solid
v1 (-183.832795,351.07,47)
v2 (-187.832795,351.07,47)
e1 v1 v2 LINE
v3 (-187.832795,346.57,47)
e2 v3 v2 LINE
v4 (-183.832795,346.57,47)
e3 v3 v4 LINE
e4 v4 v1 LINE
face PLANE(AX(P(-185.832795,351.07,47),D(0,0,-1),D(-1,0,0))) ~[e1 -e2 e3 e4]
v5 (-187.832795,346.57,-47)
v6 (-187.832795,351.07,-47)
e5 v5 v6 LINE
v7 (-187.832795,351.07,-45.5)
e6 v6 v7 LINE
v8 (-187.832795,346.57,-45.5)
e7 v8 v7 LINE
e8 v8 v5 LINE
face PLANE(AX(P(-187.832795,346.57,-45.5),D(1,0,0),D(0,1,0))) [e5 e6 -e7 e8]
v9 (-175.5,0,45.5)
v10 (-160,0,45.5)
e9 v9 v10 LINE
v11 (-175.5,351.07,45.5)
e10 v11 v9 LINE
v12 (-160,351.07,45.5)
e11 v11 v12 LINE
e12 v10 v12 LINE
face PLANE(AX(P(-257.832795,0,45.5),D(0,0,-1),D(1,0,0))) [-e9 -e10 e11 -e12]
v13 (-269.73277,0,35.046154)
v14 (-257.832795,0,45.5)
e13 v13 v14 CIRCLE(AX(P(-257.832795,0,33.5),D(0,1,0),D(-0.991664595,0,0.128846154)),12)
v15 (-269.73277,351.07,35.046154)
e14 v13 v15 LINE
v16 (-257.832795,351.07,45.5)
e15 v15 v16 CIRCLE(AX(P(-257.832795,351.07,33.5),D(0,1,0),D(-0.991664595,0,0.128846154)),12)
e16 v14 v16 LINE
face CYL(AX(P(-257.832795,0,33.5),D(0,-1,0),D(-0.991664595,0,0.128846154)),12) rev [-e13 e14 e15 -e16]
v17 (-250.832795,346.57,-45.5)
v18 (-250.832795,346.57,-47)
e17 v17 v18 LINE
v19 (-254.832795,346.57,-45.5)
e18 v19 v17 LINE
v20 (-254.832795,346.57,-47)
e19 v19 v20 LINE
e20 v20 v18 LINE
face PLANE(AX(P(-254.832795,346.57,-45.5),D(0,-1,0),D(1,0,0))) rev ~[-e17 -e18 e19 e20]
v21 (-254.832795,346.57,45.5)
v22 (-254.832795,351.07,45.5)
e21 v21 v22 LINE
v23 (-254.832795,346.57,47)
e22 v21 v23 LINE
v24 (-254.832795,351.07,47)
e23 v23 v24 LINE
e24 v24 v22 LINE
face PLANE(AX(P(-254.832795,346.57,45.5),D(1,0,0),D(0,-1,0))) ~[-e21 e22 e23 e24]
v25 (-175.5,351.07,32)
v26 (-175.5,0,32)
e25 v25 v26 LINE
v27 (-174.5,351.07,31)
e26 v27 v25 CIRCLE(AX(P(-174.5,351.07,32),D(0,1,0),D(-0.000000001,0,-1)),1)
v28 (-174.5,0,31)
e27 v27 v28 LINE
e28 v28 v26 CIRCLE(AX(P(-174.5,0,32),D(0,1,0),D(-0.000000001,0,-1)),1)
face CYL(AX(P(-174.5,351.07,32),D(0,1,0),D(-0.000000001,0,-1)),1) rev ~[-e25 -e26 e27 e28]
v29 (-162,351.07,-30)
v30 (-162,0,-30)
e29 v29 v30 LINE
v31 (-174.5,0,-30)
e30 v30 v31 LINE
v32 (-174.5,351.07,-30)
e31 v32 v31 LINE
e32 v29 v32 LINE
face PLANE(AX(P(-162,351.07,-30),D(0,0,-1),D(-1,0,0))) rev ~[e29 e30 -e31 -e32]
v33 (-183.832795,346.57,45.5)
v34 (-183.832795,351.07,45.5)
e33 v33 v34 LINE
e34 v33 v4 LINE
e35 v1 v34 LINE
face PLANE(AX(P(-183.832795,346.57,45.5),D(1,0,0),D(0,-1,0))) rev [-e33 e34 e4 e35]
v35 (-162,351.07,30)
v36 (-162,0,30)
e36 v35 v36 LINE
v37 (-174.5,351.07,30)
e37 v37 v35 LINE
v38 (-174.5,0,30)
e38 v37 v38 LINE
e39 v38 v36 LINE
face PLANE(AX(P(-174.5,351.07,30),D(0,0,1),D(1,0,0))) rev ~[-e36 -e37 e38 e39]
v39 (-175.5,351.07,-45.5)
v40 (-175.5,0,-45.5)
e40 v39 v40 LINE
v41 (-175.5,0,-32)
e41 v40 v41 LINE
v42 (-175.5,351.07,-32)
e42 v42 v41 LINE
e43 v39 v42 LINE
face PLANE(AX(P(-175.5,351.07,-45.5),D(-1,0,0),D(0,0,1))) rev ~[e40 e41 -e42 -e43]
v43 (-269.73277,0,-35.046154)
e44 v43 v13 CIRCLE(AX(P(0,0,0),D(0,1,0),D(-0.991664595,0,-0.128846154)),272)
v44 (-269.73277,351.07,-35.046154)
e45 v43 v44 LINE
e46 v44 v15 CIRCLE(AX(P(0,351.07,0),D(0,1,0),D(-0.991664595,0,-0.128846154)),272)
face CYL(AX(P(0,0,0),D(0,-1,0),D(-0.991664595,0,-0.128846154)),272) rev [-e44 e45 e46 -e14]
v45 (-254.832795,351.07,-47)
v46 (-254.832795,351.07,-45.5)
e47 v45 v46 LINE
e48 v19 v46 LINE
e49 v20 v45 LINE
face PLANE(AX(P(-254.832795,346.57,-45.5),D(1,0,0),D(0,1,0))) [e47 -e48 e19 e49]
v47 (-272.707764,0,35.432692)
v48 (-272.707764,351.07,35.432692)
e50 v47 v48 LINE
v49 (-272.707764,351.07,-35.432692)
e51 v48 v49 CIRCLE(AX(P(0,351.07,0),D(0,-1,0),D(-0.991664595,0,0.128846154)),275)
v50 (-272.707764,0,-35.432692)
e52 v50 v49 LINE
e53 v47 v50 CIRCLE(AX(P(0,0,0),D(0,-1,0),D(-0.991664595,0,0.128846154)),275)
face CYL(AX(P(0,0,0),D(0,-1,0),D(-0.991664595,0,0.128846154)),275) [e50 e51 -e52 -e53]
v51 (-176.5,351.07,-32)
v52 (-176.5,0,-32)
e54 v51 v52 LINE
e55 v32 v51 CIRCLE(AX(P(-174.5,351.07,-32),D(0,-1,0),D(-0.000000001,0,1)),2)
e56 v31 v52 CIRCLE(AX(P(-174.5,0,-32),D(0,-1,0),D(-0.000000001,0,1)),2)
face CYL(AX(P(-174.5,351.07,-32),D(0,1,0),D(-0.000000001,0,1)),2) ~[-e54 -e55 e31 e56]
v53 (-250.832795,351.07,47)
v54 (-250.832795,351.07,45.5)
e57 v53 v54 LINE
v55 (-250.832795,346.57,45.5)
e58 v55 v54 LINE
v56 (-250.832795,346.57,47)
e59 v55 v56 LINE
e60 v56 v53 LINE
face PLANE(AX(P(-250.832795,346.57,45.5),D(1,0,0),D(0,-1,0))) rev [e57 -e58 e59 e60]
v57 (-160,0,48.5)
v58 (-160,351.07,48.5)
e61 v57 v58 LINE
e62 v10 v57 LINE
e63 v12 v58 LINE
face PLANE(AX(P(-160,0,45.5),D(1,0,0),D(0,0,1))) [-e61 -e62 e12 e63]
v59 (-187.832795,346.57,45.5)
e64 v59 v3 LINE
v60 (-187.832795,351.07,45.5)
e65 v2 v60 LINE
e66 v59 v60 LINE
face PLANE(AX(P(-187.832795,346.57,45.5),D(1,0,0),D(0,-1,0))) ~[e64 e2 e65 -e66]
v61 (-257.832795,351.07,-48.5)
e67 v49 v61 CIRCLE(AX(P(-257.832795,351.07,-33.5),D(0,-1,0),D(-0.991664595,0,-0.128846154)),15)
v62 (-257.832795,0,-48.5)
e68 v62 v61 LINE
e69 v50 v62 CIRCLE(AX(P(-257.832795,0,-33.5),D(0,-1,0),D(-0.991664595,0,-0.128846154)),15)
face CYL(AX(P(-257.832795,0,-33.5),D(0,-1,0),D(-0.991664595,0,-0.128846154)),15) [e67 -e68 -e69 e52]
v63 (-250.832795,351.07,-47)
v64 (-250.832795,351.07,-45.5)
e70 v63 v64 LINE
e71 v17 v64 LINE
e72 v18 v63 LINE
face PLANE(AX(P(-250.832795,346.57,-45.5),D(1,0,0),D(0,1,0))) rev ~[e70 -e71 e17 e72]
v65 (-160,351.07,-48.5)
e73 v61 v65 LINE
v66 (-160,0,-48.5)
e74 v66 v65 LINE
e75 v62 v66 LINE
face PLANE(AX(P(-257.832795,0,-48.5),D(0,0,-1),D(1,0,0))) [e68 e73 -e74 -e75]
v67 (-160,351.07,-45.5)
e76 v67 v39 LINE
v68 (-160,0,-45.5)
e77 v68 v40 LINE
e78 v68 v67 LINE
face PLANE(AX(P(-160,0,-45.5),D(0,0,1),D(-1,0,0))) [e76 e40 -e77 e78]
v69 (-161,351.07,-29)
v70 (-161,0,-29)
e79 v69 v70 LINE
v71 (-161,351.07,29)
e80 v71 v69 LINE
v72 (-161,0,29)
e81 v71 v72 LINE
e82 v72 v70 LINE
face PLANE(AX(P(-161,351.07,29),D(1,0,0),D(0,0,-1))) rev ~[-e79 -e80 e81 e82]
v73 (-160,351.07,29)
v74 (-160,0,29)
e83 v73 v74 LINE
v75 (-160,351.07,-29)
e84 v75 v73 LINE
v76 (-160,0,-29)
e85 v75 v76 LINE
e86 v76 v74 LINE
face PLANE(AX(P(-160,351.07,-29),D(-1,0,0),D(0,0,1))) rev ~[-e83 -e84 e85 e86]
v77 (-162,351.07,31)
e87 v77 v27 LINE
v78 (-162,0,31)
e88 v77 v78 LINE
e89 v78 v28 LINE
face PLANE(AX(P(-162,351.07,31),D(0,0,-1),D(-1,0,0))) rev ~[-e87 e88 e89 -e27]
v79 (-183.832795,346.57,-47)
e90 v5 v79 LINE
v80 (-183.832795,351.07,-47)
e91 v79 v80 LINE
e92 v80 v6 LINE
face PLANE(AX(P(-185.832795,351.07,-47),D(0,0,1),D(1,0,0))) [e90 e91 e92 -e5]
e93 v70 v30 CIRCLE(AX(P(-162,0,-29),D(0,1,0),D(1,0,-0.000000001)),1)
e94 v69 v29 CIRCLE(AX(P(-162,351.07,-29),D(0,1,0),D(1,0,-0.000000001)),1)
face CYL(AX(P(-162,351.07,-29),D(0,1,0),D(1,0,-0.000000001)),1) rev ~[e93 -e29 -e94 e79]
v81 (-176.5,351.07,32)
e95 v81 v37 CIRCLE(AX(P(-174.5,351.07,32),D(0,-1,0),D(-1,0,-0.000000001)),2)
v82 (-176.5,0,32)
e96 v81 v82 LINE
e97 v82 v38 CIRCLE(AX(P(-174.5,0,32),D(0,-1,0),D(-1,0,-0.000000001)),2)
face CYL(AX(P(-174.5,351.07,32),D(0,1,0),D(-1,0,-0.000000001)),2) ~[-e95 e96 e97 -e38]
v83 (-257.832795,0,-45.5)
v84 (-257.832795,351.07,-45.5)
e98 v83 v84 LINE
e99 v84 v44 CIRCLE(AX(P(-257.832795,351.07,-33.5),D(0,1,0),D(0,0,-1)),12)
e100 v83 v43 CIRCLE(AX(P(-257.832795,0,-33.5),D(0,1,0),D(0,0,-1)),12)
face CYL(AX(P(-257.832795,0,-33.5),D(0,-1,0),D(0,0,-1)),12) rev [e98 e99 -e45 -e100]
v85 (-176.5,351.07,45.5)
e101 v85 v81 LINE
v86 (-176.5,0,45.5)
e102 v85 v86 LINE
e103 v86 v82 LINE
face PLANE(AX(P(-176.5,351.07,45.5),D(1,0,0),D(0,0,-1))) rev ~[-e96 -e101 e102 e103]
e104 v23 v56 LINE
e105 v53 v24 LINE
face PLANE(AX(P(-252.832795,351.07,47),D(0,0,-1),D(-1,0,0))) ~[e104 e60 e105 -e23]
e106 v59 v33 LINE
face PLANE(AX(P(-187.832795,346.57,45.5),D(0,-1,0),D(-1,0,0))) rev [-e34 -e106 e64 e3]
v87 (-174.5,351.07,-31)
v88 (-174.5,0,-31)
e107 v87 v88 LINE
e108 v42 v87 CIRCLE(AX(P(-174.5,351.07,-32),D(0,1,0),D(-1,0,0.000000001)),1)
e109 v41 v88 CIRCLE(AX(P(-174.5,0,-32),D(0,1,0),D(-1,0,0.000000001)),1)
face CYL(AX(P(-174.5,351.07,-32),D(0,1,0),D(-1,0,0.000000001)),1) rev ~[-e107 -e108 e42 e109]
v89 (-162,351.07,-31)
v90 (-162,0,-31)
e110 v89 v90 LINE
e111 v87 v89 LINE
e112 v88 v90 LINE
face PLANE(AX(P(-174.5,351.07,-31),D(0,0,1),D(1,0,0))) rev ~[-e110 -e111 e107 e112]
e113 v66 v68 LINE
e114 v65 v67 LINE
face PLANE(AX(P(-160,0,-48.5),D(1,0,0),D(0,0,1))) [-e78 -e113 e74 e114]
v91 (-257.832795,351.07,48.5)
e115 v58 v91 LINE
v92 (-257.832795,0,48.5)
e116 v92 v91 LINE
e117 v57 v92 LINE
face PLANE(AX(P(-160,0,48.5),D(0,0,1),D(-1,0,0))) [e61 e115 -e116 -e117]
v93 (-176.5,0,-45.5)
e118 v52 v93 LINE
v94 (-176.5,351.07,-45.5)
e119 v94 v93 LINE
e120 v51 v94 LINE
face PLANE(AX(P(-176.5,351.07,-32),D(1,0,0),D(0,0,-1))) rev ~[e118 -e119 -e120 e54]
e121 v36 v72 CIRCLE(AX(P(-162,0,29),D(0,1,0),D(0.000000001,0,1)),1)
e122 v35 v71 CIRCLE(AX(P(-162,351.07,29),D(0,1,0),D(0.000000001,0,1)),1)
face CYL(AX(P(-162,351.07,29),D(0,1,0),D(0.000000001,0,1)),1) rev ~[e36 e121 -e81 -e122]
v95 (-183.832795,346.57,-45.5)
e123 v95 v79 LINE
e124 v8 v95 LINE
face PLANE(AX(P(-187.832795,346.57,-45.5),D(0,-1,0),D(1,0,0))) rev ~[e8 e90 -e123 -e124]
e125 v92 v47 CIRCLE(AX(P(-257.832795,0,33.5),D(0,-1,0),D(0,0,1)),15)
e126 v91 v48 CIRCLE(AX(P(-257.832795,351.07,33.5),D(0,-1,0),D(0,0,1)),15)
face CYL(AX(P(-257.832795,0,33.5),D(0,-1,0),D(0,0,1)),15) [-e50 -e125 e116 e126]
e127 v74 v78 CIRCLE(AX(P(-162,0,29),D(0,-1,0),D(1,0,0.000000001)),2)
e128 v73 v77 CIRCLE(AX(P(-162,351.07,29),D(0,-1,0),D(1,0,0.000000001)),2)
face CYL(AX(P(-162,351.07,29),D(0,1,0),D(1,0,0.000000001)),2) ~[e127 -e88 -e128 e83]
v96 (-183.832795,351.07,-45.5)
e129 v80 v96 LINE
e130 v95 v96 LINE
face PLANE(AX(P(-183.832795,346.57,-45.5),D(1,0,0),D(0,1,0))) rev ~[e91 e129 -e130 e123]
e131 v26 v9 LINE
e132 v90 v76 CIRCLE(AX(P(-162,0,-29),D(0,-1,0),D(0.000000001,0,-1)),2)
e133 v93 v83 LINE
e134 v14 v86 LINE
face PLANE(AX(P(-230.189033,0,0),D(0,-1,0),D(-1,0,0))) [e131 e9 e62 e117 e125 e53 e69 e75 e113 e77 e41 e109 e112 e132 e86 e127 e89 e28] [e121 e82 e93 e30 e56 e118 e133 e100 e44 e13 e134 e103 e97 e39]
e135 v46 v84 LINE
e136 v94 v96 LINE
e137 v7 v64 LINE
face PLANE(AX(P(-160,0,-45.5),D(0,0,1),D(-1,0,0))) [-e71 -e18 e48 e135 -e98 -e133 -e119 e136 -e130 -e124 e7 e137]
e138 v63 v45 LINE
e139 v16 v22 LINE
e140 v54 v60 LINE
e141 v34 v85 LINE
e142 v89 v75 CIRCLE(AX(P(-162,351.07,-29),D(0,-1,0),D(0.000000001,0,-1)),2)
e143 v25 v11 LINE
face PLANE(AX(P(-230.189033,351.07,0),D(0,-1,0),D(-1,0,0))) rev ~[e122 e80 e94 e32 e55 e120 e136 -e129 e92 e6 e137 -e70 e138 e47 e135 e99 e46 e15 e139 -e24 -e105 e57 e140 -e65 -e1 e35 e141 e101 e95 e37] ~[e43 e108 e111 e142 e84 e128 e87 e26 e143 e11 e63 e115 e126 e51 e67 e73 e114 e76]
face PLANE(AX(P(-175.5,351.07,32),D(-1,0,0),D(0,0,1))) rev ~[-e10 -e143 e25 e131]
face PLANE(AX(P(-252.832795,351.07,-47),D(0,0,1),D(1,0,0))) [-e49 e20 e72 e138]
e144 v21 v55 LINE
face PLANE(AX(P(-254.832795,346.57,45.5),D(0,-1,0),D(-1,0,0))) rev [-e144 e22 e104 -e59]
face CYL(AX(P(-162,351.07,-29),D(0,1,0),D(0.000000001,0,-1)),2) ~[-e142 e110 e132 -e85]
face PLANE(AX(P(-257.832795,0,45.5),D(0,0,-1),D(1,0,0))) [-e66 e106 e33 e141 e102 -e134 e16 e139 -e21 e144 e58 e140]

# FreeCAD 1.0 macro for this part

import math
import FreeCAD as App
import Part
import Sketcher

V = App.Vector
Q = App.Units.Quantity


def add_polygon(sketch, points):
    """Adds a closed chain of lines whose ends are joined by coincident constraints."""
    first, n = sketch.GeometryCount, len(points)
    for a, b in zip(points, points[1:] + points[:1]):
        sketch.addGeometry(Part.LineSegment(App.Vector(*a, 0), App.Vector(*b, 0)), False)
    for i in range(n):
        sketch.addConstraint(Sketcher.Constraint("Coincident", first + i, 2, first + (i + 1) % n, 1))

doc = App.newDocument("Part")
body = doc.addObject("PartDesign::Body", "Body")

# Sketch on XZ plane
sketch1 = body.newObject("Sketcher::SketchObject", "Sketch")
sketch1.AttachmentSupport = (doc.getObject("XZ_Plane"), [""])
sketch1.MapMode = "FlatFace"
sketch1.addGeometry([
    Part.LineSegment(V(-160, -48.5, 0), V(-257.8, -48.5, 0)),  # 0
    Part.ArcOfCircle(Part.Circle(V(-257.8, -33.5, 0), V(0, 0, 1), 15), math.radians(-173), math.radians(-90)),  # 1
    Part.ArcOfCircle(Part.Circle(V(0, 0, 0), V(0, 0, 1), 275), math.radians(172.6), math.radians(187.4)),  # 2
    Part.ArcOfCircle(Part.Circle(V(-257.8, 33.5, 0), V(0, 0, 1), 15), math.radians(90), math.radians(173)),  # 3
    Part.LineSegment(V(-257.8, 48.5, 0), V(-160, 48.5, 0)),  # 4
    Part.LineSegment(V(-160, 48.5, 0), V(-160, 45.5, 0)),  # 5
    Part.LineSegment(V(-160, 45.5, 0), V(-257.8, 45.5, 0)),  # 6
    Part.ArcOfCircle(Part.Circle(V(-257.8, 33.5, 0), V(0, 0, 1), 12), math.radians(90), math.radians(173)),  # 7
    Part.ArcOfCircle(Part.Circle(V(0, 0, 0), V(0, 0, 1), 272), math.radians(172.6), math.radians(187.4)),  # 8
    Part.ArcOfCircle(Part.Circle(V(-257.8, -33.5, 0), V(0, 0, 1), 12), math.radians(-173), math.radians(-90)),  # 9
    Part.LineSegment(V(-257.8, -45.5, 0), V(-160, -45.5, 0)),  # 10
    Part.LineSegment(V(-160, -45.5, 0), V(-160, -48.5, 0)),  # 11
], False)
sketch1.addConstraint([
    Sketcher.Constraint("Tangent", 0, 2, 1, 2),
    Sketcher.Constraint("Tangent", 1, 1, 2, 2),
    Sketcher.Constraint("Tangent", 2, 1, 3, 2),
    Sketcher.Constraint("Tangent", 3, 1, 4, 1),
    Sketcher.Constraint("Coincident", 4, 2, 5, 1),
    Sketcher.Constraint("Coincident", 5, 2, 6, 1),
    Sketcher.Constraint("Tangent", 6, 2, 7, 1),
    Sketcher.Constraint("Tangent", 7, 2, 8, 1),
    Sketcher.Constraint("Tangent", 8, 2, 9, 1),
    Sketcher.Constraint("Tangent", 9, 2, 10, 1),
    Sketcher.Constraint("Coincident", 10, 2, 11, 1),
    Sketcher.Constraint("Coincident", 11, 2, 0, 1),
    Sketcher.Constraint("Horizontal", 0),
    Sketcher.Constraint("Horizontal", 4),
    Sketcher.Constraint("Vertical", 5),
    Sketcher.Constraint("Horizontal", 6),
    Sketcher.Constraint("Horizontal", 10),
    Sketcher.Constraint("Vertical", 11),
    Sketcher.Constraint("Coincident", 2, 3, -1, 1),
    Sketcher.Constraint("Coincident", 8, 3, -1, 1),
    Sketcher.Constraint("Coincident", 7, 3, 3, 3),
    Sketcher.Constraint("Coincident", 9, 3, 1, 3),
    Sketcher.Constraint("Equal", 1, 3),
    Sketcher.Constraint("Symmetric", 5, 2, 10, 2, -1),
    Sketcher.Constraint("Radius", 1, Q("15 mm")),
    Sketcher.Constraint("Radius", 2, Q("275 mm")),
    Sketcher.Constraint("Radius", 7, Q("12 mm")),
    Sketcher.Constraint("DistanceX", 4, 2, -1, 1, Q("160 mm")),
    Sketcher.Constraint("DistanceY", 1, 3, 3, 3, Q("67 mm")),
])
pad1 = body.newObject("PartDesign::Pad", "Pad")
pad1.Profile = sketch1
pad1.Length = 351.07
pad1.Reversed = True

# Sketch on XY plane
sketch2 = body.newObject("Sketcher::SketchObject", "Sketch001")
sketch2.AttachmentSupport = (doc.getObject("XY_Plane"), [""])
sketch2.MapMode = "FlatFace"
sketch2.AttachmentOffset = App.Placement(V(0, 0, -45.5), App.Rotation())
add_polygon(sketch2, [(-254.8, 355.6), (-254.8, 346.6), (-250.8, 346.6), (-250.8, 355.6)])  # lines 0-3
add_polygon(sketch2, [(-187.8, 355.6), (-187.8, 346.6), (-183.8, 346.6), (-183.8, 355.6)])  # lines 4-7
sketch2.addConstraint([
    Sketcher.Constraint("Vertical", 0),
    Sketcher.Constraint("Horizontal", 1),
    Sketcher.Constraint("Vertical", 2),
    Sketcher.Constraint("Horizontal", 3),
    Sketcher.Constraint("Vertical", 4),
    Sketcher.Constraint("Horizontal", 5),
    Sketcher.Constraint("Vertical", 6),
    Sketcher.Constraint("Horizontal", 7),
    Sketcher.Constraint("Horizontal", 1, 2, 4, 2),
    Sketcher.Constraint("Horizontal", 3, 2, 6, 2),
    Sketcher.Constraint("Equal", 3, 5),
    Sketcher.Constraint("DistanceX", 1, 1, 1, 2, Q("4 mm")),
    Sketcher.Constraint("DistanceY", 0, 2, 0, 1, Q("9 mm")),
    Sketcher.Constraint("DistanceX", 1, 2, 4, 2, Q("63 mm")),
    Sketcher.Constraint("DistanceY", -1, 1, 0, 2, Q("346.57 mm")),
    Sketcher.Constraint("DistanceX", 0, 2, -1, 1, Q("254.832795 mm")),
])
pocket1 = body.newObject("PartDesign::Pocket", "Pocket")
pocket1.Profile = sketch2
pocket1.Length = 1.5
doc.recompute()

mirrored = body.newObject("PartDesign::Mirrored", "Mirrored")
mirrored.Originals = [pocket1]
mirrored.MirrorPlane = (doc.getObject("XY_Plane"), [""])
body.Tip = mirrored

# Sketch on XZ plane
sketch3 = body.newObject("Sketcher::SketchObject", "Sketch002")
sketch3.AttachmentSupport = (doc.getObject("XZ_Plane"), [""])
sketch3.MapMode = "FlatFace"
sketch3.AttachmentOffset = App.Placement(V(0, 0, -351.07), App.Rotation())
sketch3.addGeometry([
    Part.LineSegment(V(-176.5, 32, 0), V(-176.5, 45.5, 0)),  # 0
    Part.LineSegment(V(-176.5, 45.5, 0), V(-175.5, 45.5, 0)),  # 1
    Part.LineSegment(V(-175.5, 45.5, 0), V(-175.5, 32, 0)),  # 2
    Part.ArcOfCircle(Part.Circle(V(-174.5, 32, 0), V(0, 0, 1), 1), math.radians(-180), math.radians(-90)),  # 3
    Part.LineSegment(V(-174.5, 31, 0), V(-162, 31, 0)),  # 4
    Part.ArcOfCircle(Part.Circle(V(-162, 29, 0), V(0, 0, 1), 2), math.radians(0), math.radians(90)),  # 5
    Part.LineSegment(V(-160, 29, 0), V(-160, -29, 0)),  # 6
    Part.ArcOfCircle(Part.Circle(V(-162, -29, 0), V(0, 0, 1), 2), math.radians(-90), math.radians(0)),  # 7
    Part.LineSegment(V(-162, -31, 0), V(-174.5, -31, 0)),  # 8
    Part.ArcOfCircle(Part.Circle(V(-174.5, -32, 0), V(0, 0, 1), 1), math.radians(90), math.radians(180)),  # 9
    Part.LineSegment(V(-175.5, -32, 0), V(-175.5, -45.5, 0)),  # 10
    Part.LineSegment(V(-175.5, -45.5, 0), V(-176.5, -45.5, 0)),  # 11
    Part.LineSegment(V(-176.5, -45.5, 0), V(-176.5, -32, 0)),  # 12
    Part.ArcOfCircle(Part.Circle(V(-174.5, -32, 0), V(0, 0, 1), 2), math.radians(90), math.radians(180)),  # 13
    Part.LineSegment(V(-174.5, -30, 0), V(-162, -30, 0)),  # 14
    Part.ArcOfCircle(Part.Circle(V(-162, -29, 0), V(0, 0, 1), 1), math.radians(-90), math.radians(0)),  # 15
    Part.LineSegment(V(-161, -29, 0), V(-161, 29, 0)),  # 16
    Part.ArcOfCircle(Part.Circle(V(-162, 29, 0), V(0, 0, 1), 1), math.radians(0), math.radians(90)),  # 17
    Part.LineSegment(V(-162, 30, 0), V(-174.5, 30, 0)),  # 18
    Part.ArcOfCircle(Part.Circle(V(-174.5, 32, 0), V(0, 0, 1), 2), math.radians(-180), math.radians(-90)),  # 19
], False)
sketch3.addConstraint([
    Sketcher.Constraint("Coincident", 0, 2, 1, 1),
    Sketcher.Constraint("Coincident", 1, 2, 2, 1),
    Sketcher.Constraint("Tangent", 2, 2, 3, 1),
    Sketcher.Constraint("Tangent", 3, 2, 4, 1),
    Sketcher.Constraint("Tangent", 4, 2, 5, 2),
    Sketcher.Constraint("Tangent", 5, 1, 6, 1),
    Sketcher.Constraint("Tangent", 6, 2, 7, 2),
    Sketcher.Constraint("Tangent", 7, 1, 8, 1),
    Sketcher.Constraint("Tangent", 8, 2, 9, 1),
    Sketcher.Constraint("Tangent", 9, 2, 10, 1),
    Sketcher.Constraint("Coincident", 10, 2, 11, 1),
    Sketcher.Constraint("Coincident", 11, 2, 12, 1),
    Sketcher.Constraint("Tangent", 12, 2, 13, 2),
    Sketcher.Constraint("Tangent", 13, 1, 14, 1),
    Sketcher.Constraint("Tangent", 14, 2, 15, 1),
    Sketcher.Constraint("Tangent", 15, 2, 16, 1),
    Sketcher.Constraint("Tangent", 16, 2, 17, 1),
    Sketcher.Constraint("Tangent", 17, 2, 18, 1),
    Sketcher.Constraint("Tangent", 18, 2, 19, 2),
    Sketcher.Constraint("Tangent", 19, 1, 0, 1),
    Sketcher.Constraint("Vertical", 0),
    Sketcher.Constraint("Horizontal", 1),
    Sketcher.Constraint("Vertical", 2),
    Sketcher.Constraint("Horizontal", 4),
    Sketcher.Constraint("Vertical", 6),
    Sketcher.Constraint("Horizontal", 8),
    Sketcher.Constraint("Vertical", 10),
    Sketcher.Constraint("Horizontal", 11),
    Sketcher.Constraint("Vertical", 12),
    Sketcher.Constraint("Horizontal", 14),
    Sketcher.Constraint("Vertical", 16),
    Sketcher.Constraint("Horizontal", 18),
    Sketcher.Constraint("Coincident", 13, 3, 9, 3),
    Sketcher.Constraint("Coincident", 15, 3, 7, 3),
    Sketcher.Constraint("Coincident", 17, 3, 5, 3),
    Sketcher.Constraint("Coincident", 19, 3, 3, 3),
    Sketcher.Constraint("Equal", 5, 7),
    Sketcher.Constraint("Equal", 3, 9),
    Sketcher.Constraint("Equal", 7, 13),
    Sketcher.Constraint("Symmetric", 3, 3, 9, 3, -1),
    Sketcher.Constraint("Equal", 2, 10),
    Sketcher.Constraint("Radius", 3, Q("1 mm")),
    Sketcher.Constraint("Radius", 5, Q("2 mm")),
    Sketcher.Constraint("DistanceY", 6, 2, 6, 1, Q("58 mm")),
    Sketcher.Constraint("DistanceX", 4, 1, 4, 2, Q("12.5 mm")),
    Sketcher.Constraint("DistanceY", 0, 1, 0, 2, Q("13.5 mm")),
    Sketcher.Constraint("DistanceX", 5, 3, -1, 1, Q("162 mm")),
])
pad2 = body.newObject("PartDesign::Pad", "Pad001")
pad2.Profile = sketch3
pad2.Length = 351.07

doc.recompute()
